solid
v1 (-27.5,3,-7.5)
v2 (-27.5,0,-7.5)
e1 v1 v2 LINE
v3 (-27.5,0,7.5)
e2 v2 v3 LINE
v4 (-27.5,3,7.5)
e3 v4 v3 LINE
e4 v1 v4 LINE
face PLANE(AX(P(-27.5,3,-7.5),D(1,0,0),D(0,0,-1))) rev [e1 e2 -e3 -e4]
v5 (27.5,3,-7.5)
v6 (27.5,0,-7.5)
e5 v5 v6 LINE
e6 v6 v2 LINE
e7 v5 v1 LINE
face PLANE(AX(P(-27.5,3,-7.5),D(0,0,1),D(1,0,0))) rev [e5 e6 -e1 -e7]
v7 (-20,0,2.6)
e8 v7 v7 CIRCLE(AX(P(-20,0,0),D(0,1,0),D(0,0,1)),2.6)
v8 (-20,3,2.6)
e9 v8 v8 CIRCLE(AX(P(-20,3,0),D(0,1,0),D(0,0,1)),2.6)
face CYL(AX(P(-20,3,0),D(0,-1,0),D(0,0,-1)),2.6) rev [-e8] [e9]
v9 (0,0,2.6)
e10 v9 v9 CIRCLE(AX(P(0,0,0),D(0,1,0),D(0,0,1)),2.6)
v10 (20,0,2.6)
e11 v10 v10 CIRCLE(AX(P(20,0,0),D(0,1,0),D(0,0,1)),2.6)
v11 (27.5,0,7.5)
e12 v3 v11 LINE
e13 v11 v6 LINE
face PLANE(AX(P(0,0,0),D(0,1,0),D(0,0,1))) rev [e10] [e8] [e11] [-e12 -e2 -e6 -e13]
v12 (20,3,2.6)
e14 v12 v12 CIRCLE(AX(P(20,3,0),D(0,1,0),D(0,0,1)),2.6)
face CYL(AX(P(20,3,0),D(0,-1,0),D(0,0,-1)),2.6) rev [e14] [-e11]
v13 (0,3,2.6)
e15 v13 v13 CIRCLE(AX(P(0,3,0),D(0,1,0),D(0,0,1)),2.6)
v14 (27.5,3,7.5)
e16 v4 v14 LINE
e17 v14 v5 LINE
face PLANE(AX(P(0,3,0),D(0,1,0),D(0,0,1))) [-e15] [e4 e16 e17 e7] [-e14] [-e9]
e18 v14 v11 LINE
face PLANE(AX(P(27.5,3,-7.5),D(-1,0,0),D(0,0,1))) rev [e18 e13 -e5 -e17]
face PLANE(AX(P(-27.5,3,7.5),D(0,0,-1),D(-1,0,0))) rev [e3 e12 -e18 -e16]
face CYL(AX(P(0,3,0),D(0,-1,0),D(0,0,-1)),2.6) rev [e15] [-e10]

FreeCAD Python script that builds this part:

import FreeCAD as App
import Part
import Sketcher
from FreeCAD import Vector

doc = App.newDocument("Part")
body = doc.addObject("PartDesign::Body", "Body")

sketch1 = body.newObject("Sketcher::SketchObject", "Sketch")
sketch1.AttachmentSupport = (doc.getObject("XZ_Plane"), [""])
sketch1.MapMode = "FlatFace"
sketch1.addGeometry([
    Part.LineSegment(Vector(-27.5, -7.5, 0), Vector(-27.5, 7.5, 0)),
    Part.LineSegment(Vector(-27.5, 7.5, 0), Vector(27.5, 7.5, 0)),
    Part.LineSegment(Vector(27.5, 7.5, 0), Vector(27.5, -7.5, 0)),
    Part.LineSegment(Vector(27.5, -7.5, 0), Vector(-27.5, -7.5, 0)),
    Part.Circle(Vector(-20, 0, 0), Vector(0, 0, 1), 2.6),
    Part.Circle(Vector(0, 0, 0), Vector(0, 0, 1), 2.6),
    Part.Circle(Vector(20, 0, 0), Vector(0, 0, 1), 2.6),
], False)
sketch1.addConstraint([
    Sketcher.Constraint("Coincident", 0, 2, 1, 1),
    Sketcher.Constraint("Coincident", 1, 2, 2, 1),
    Sketcher.Constraint("Coincident", 2, 2, 3, 1),
    Sketcher.Constraint("Coincident", 3, 2, 0, 1),
    Sketcher.Constraint("Vertical", 0),
    Sketcher.Constraint("Horizontal", 1),
    Sketcher.Constraint("Vertical", 2),
    Sketcher.Constraint("Horizontal", 3),
    Sketcher.Constraint("Coincident", 5, 3, -1, 1),
    Sketcher.Constraint("Equal", 4, 5),
    Sketcher.Constraint("Equal", 5, 6),
    Sketcher.Constraint("Symmetric", 4, 3, 6, 3, -1, 1),
    Sketcher.Constraint("Symmetric", 0, 2, 2, 2, -1, 1),
    Sketcher.Constraint("PointOnObject", 4, 3, -1),
    Sketcher.Constraint("Diameter", 4, 5.2),
    Sketcher.Constraint("DistanceX", 1, 1, 1, 2, 55.0),
    Sketcher.Constraint("DistanceY", 0, 1, 0, 2, 15.0),
    Sketcher.Constraint("DistanceX", 4, 3, -1, 1, 20.0),
])
pad1 = body.newObject("PartDesign::Pad", "Pad")
pad1.Profile = sketch1
pad1.Length = 3
pad1.Reversed = True

doc.recompute()
